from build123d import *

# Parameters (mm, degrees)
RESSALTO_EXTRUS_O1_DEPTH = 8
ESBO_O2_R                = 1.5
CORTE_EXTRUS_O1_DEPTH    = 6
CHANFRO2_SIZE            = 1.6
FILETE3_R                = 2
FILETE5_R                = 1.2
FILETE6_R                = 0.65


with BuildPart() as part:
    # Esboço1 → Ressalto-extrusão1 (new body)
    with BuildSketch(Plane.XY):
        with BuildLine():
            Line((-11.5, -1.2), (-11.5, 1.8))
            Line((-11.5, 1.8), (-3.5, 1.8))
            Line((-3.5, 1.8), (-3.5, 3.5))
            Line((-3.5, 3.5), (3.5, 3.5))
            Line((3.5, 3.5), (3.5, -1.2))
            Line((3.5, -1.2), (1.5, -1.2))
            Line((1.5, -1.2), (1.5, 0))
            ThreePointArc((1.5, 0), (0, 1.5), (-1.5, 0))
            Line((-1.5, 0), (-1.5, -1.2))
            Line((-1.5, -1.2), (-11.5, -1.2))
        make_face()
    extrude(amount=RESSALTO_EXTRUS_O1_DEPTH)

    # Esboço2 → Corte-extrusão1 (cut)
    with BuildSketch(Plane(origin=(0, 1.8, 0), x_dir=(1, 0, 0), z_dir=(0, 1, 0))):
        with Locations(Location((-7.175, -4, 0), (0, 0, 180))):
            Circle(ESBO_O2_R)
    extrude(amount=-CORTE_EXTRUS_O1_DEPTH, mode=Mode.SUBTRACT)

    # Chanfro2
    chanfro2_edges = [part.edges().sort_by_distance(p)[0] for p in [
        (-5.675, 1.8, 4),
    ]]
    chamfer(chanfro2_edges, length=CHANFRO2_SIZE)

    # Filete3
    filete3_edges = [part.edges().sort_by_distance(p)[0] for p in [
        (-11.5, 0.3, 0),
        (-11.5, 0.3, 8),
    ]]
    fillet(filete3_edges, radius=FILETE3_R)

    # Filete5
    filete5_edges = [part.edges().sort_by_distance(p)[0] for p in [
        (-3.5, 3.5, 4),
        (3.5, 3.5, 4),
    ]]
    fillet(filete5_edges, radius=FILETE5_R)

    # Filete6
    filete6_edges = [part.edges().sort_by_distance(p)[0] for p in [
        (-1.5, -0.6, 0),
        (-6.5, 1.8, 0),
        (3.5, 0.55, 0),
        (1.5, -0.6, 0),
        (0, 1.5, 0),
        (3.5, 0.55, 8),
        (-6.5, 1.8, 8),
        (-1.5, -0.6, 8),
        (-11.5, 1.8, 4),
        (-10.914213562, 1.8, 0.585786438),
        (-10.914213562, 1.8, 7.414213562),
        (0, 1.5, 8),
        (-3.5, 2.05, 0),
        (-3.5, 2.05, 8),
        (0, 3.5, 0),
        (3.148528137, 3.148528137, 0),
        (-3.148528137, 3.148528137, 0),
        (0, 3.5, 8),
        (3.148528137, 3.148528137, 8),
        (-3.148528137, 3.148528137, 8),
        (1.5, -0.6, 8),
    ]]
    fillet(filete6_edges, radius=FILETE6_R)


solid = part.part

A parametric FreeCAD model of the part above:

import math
import FreeCAD as App
import Part
import Sketcher
Q = App.Units.Quantity


def edges_at(feature, points):
    """Names of the edges that pass closest to the given points."""
    edges = feature.Shape.Edges
    near = lambda p: min(range(len(edges)), key=lambda i: edges[i].distToShape(Part.Vertex(*p))[0])
    return sorted({f"Edge{near(p) + 1}" for p in points})

doc = App.newDocument("Part")
body = doc.addObject("PartDesign::Body", "Body")

# Sketch on XY plane
sketch1 = doc.addObject("Sketcher::SketchObject", "Sketch")
body.addObject(sketch1)
sketch1.AttachmentSupport = (doc.XY_Plane, [""])
sketch1.MapMode = "FlatFace"
sketch1.addGeometry([
    Part.LineSegment(App.Vector(-11.5, 1.8, 0), App.Vector(-11.5, -1.2, 0)),  # 0
    Part.LineSegment(App.Vector(-11.5, -1.2, 0), App.Vector(-1.5, -1.2, 0)),  # 1
    Part.LineSegment(App.Vector(-1.5, -1.2, 0), App.Vector(-1.5, 0, 0)),  # 2
    Part.ArcOfCircle(Part.Circle(App.Vector(0, 0, 0), App.Vector(0, 0, 1), 1.5), math.radians(0), math.radians(180)),  # 3
    Part.LineSegment(App.Vector(1.5, 0, 0), App.Vector(1.5, -1.2, 0)),  # 4
    Part.LineSegment(App.Vector(1.5, -1.2, 0), App.Vector(3.5, -1.2, 0)),  # 5
    Part.LineSegment(App.Vector(3.5, -1.2, 0), App.Vector(3.5, 3.5, 0)),  # 6
    Part.LineSegment(App.Vector(3.5, 3.5, 0), App.Vector(-3.5, 3.5, 0)),  # 7
    Part.LineSegment(App.Vector(-3.5, 3.5, 0), App.Vector(-3.5, 1.8, 0)),  # 8
    Part.LineSegment(App.Vector(-3.5, 1.8, 0), App.Vector(-11.5, 1.8, 0)),  # 9
], False)
sketch1.addConstraint([
    Sketcher.Constraint("Coincident", 0, 2, 1, 1),
    Sketcher.Constraint("Coincident", 1, 2, 2, 1),
    Sketcher.Constraint("Tangent", 2, 2, 3, 2),
    Sketcher.Constraint("Tangent", 3, 1, 4, 1),
    Sketcher.Constraint("Coincident", 4, 2, 5, 1),
    Sketcher.Constraint("Coincident", 5, 2, 6, 1),
    Sketcher.Constraint("Coincident", 6, 2, 7, 1),
    Sketcher.Constraint("Coincident", 7, 2, 8, 1),
    Sketcher.Constraint("Coincident", 8, 2, 9, 1),
    Sketcher.Constraint("Coincident", 9, 2, 0, 1),
    Sketcher.Constraint("Vertical", 0),
    Sketcher.Constraint("Horizontal", 1),
    Sketcher.Constraint("Vertical", 2),
    Sketcher.Constraint("Vertical", 4),
    Sketcher.Constraint("Horizontal", 5),
    Sketcher.Constraint("Vertical", 6),
    Sketcher.Constraint("Horizontal", 7),
    Sketcher.Constraint("Vertical", 8),
    Sketcher.Constraint("Horizontal", 9),
    Sketcher.Constraint("Coincident", 3, 3, -1, 1),
    Sketcher.Constraint("Horizontal", 1, 2, 4, 2),
    Sketcher.Constraint("Radius", 3, Q("1.5 mm")),
    Sketcher.Constraint("DistanceX", 1, 1, 1, 2, Q("10 mm")),
    Sketcher.Constraint("DistanceX", 5, 1, 5, 2, Q("2 mm")),
    Sketcher.Constraint("DistanceX", 7, 2, 7, 1, Q("7 mm")),
    Sketcher.Constraint("DistanceY", 0, 2, 0, 1, Q("3 mm")),
    Sketcher.Constraint("DistanceY", 2, 1, 2, 2, Q("1.2 mm")),
    Sketcher.Constraint("DistanceY", 6, 1, 6, 2, Q("4.7 mm")),
])
pad1 = doc.addObject("PartDesign::Pad", "Pad")
body.addObject(pad1)
pad1.Profile = sketch1
pad1.Length = 8

# Sketch on XZ plane
sketch2 = doc.addObject("Sketcher::SketchObject", "Sketch001")
body.addObject(sketch2)
sketch2.AttachmentSupport = (doc.XZ_Plane, [""])
sketch2.MapMode = "FlatFace"
sketch2.AttachmentOffset = App.Placement(App.Vector(0, 0, -1.8), App.Rotation())
sketch2.addGeometry(Part.Circle(App.Vector(-7.2, 4, 0), App.Vector(0, 0, 1), 1.5), False)
sketch2.addConstraint([
    Sketcher.Constraint("Diameter", 0, Q("3 mm")),
    Sketcher.Constraint("DistanceY", -1, 1, 0, 3, Q("4 mm")),
    Sketcher.Constraint("DistanceX", 0, 3, -1, 1, Q("7.175 mm")),
])
pocket1 = doc.addObject("PartDesign::Pocket", "Pocket")
body.addObject(pocket1)
pocket1.Profile = sketch2
pocket1.Length = 6
pocket1.Reversed = True
doc.recompute()

chamfer = doc.addObject("PartDesign::Chamfer", "Chamfer")
body.addObject(chamfer)
chamfer.Base = (pocket1, edges_at(pocket1, [(-5.675, 1.8, 4)]))
chamfer.Size = 1.6
doc.recompute()

fillet = doc.addObject("PartDesign::Fillet", "Fillet")
body.addObject(fillet)
fillet.Base = (chamfer, edges_at(chamfer, [(-11.5, 0.3, 0), (-11.5, 0.3, 8)]))
fillet.Radius = 2
doc.recompute()

fillet2 = doc.addObject("PartDesign::Fillet", "Fillet001")
body.addObject(fillet2)
fillet2.Base = (fillet, edges_at(fillet, [(-3.5, 3.5, 4), (3.5, 3.5, 4)]))
fillet2.Radius = 1.2
doc.recompute()

fillet3 = doc.addObject("PartDesign::Fillet", "Fillet002")
body.addObject(fillet3)
fillet3.Base = (fillet2, edges_at(fillet2, [
    (-1.5, -0.6, 0),
    (-6.5, 1.8, 0),
    (3.5, 0.55, 0),
    (1.5, -0.6, 0),
    (0, 1.5, 0),
    (3.5, 0.55, 8),
    (-6.5, 1.8, 8),
    (-1.5, -0.6, 8),
    (-11.5, 1.8, 4),
    (-10.914, 1.8, 0.586),
    (-10.914, 1.8, 7.414),
    (0, 1.5, 8),
    (-3.5, 2.05, 0),
    (-3.5, 2.05, 8),
    (0, 3.5, 0),
    (3.149, 3.149, 0),
    (-3.149, 3.149, 0),
    (0, 3.5, 8),
    (3.149, 3.149, 8),
    (-3.149, 3.149, 8),
    (1.5, -0.6, 8),
]))
fillet3.Radius = 0.65

doc.recompute()
